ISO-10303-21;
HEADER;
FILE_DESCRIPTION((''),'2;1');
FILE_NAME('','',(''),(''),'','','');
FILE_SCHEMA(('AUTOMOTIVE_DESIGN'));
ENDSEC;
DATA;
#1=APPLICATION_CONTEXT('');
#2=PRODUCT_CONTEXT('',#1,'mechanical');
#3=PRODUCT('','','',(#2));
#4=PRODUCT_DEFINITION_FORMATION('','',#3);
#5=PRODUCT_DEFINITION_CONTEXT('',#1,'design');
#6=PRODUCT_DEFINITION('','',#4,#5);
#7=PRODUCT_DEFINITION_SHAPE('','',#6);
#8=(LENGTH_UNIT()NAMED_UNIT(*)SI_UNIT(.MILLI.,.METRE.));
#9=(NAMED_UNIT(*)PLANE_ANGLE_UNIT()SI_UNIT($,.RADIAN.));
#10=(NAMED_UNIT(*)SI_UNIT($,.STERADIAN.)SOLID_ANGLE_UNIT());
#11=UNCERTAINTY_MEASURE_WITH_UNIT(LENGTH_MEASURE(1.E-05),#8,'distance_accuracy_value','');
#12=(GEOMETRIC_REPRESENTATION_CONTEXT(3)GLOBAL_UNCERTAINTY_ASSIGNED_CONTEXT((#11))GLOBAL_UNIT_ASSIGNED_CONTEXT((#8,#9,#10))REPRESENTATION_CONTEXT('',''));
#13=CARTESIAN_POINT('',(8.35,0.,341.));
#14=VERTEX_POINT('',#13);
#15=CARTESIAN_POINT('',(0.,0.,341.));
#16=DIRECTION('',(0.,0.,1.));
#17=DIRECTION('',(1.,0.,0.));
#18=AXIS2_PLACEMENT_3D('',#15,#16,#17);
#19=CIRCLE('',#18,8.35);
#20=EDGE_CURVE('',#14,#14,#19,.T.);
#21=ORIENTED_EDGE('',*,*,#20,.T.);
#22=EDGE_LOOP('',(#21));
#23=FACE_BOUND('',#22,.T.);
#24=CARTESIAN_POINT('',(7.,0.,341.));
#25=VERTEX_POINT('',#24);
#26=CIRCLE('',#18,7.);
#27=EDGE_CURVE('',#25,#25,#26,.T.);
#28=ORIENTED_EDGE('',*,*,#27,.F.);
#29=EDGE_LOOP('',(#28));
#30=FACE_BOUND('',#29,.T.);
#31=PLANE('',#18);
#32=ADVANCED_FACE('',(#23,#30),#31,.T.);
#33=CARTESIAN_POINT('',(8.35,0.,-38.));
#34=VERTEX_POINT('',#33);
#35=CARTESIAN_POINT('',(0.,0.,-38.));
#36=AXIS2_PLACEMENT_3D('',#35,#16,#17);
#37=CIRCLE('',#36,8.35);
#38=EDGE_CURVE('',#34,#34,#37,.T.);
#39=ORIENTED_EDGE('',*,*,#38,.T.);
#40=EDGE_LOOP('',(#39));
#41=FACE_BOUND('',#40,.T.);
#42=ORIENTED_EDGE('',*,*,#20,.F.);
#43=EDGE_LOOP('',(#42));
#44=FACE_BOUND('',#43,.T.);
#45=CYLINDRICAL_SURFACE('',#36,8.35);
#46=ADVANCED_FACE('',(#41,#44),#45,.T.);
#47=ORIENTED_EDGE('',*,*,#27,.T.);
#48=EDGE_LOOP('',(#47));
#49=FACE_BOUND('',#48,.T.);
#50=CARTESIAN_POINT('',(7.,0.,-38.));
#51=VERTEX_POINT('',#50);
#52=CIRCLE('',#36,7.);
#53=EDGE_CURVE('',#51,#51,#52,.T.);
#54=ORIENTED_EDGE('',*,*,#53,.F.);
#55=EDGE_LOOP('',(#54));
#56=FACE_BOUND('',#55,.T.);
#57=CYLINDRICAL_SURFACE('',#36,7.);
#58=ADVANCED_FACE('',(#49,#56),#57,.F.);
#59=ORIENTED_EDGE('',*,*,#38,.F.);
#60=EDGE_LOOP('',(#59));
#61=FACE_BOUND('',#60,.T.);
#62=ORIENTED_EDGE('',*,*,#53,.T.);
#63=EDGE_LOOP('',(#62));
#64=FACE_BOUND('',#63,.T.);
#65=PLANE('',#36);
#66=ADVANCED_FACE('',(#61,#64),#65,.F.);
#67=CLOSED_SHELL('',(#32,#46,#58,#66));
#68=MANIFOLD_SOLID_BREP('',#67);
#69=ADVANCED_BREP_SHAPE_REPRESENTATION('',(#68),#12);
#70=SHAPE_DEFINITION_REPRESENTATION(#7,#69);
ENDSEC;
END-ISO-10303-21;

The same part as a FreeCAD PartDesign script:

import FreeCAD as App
import Part
import Sketcher

V = App.Vector

doc = App.newDocument("Part")
body = doc.addObject("PartDesign::Body", "Body")

# Sketch on XY plane
sketch1 = body.newObject("Sketcher::SketchObject", "Sketch")
sketch1.AttachmentSupport = (doc.getObject("XY_Plane"), [""])
sketch1.MapMode = "FlatFace"
sketch1.addGeometry(Part.Circle(V(0, 0, 0), V(0, 0, 1), 8.35), False)
sketch1.addGeometry(Part.Circle(V(0, 0, 0), V(0, 0, 1), 7), False)
sketch1.addConstraint(Sketcher.Constraint("Coincident", 0, 3, -1, 1))
sketch1.addConstraint(Sketcher.Constraint("Coincident", 1, 3, -1, 1))
sketch1.addConstraint(Sketcher.Constraint("Diameter", 1, 14.0))
sketch1.addConstraint(Sketcher.Constraint("Diameter", 0, 16.7))
pad1 = body.newObject("PartDesign::Pad", "Pad")
pad1.Profile = sketch1
pad1.Type = "TwoLengths"
pad1.Length = 341
pad1.Length2 = 38

doc.recompute()
